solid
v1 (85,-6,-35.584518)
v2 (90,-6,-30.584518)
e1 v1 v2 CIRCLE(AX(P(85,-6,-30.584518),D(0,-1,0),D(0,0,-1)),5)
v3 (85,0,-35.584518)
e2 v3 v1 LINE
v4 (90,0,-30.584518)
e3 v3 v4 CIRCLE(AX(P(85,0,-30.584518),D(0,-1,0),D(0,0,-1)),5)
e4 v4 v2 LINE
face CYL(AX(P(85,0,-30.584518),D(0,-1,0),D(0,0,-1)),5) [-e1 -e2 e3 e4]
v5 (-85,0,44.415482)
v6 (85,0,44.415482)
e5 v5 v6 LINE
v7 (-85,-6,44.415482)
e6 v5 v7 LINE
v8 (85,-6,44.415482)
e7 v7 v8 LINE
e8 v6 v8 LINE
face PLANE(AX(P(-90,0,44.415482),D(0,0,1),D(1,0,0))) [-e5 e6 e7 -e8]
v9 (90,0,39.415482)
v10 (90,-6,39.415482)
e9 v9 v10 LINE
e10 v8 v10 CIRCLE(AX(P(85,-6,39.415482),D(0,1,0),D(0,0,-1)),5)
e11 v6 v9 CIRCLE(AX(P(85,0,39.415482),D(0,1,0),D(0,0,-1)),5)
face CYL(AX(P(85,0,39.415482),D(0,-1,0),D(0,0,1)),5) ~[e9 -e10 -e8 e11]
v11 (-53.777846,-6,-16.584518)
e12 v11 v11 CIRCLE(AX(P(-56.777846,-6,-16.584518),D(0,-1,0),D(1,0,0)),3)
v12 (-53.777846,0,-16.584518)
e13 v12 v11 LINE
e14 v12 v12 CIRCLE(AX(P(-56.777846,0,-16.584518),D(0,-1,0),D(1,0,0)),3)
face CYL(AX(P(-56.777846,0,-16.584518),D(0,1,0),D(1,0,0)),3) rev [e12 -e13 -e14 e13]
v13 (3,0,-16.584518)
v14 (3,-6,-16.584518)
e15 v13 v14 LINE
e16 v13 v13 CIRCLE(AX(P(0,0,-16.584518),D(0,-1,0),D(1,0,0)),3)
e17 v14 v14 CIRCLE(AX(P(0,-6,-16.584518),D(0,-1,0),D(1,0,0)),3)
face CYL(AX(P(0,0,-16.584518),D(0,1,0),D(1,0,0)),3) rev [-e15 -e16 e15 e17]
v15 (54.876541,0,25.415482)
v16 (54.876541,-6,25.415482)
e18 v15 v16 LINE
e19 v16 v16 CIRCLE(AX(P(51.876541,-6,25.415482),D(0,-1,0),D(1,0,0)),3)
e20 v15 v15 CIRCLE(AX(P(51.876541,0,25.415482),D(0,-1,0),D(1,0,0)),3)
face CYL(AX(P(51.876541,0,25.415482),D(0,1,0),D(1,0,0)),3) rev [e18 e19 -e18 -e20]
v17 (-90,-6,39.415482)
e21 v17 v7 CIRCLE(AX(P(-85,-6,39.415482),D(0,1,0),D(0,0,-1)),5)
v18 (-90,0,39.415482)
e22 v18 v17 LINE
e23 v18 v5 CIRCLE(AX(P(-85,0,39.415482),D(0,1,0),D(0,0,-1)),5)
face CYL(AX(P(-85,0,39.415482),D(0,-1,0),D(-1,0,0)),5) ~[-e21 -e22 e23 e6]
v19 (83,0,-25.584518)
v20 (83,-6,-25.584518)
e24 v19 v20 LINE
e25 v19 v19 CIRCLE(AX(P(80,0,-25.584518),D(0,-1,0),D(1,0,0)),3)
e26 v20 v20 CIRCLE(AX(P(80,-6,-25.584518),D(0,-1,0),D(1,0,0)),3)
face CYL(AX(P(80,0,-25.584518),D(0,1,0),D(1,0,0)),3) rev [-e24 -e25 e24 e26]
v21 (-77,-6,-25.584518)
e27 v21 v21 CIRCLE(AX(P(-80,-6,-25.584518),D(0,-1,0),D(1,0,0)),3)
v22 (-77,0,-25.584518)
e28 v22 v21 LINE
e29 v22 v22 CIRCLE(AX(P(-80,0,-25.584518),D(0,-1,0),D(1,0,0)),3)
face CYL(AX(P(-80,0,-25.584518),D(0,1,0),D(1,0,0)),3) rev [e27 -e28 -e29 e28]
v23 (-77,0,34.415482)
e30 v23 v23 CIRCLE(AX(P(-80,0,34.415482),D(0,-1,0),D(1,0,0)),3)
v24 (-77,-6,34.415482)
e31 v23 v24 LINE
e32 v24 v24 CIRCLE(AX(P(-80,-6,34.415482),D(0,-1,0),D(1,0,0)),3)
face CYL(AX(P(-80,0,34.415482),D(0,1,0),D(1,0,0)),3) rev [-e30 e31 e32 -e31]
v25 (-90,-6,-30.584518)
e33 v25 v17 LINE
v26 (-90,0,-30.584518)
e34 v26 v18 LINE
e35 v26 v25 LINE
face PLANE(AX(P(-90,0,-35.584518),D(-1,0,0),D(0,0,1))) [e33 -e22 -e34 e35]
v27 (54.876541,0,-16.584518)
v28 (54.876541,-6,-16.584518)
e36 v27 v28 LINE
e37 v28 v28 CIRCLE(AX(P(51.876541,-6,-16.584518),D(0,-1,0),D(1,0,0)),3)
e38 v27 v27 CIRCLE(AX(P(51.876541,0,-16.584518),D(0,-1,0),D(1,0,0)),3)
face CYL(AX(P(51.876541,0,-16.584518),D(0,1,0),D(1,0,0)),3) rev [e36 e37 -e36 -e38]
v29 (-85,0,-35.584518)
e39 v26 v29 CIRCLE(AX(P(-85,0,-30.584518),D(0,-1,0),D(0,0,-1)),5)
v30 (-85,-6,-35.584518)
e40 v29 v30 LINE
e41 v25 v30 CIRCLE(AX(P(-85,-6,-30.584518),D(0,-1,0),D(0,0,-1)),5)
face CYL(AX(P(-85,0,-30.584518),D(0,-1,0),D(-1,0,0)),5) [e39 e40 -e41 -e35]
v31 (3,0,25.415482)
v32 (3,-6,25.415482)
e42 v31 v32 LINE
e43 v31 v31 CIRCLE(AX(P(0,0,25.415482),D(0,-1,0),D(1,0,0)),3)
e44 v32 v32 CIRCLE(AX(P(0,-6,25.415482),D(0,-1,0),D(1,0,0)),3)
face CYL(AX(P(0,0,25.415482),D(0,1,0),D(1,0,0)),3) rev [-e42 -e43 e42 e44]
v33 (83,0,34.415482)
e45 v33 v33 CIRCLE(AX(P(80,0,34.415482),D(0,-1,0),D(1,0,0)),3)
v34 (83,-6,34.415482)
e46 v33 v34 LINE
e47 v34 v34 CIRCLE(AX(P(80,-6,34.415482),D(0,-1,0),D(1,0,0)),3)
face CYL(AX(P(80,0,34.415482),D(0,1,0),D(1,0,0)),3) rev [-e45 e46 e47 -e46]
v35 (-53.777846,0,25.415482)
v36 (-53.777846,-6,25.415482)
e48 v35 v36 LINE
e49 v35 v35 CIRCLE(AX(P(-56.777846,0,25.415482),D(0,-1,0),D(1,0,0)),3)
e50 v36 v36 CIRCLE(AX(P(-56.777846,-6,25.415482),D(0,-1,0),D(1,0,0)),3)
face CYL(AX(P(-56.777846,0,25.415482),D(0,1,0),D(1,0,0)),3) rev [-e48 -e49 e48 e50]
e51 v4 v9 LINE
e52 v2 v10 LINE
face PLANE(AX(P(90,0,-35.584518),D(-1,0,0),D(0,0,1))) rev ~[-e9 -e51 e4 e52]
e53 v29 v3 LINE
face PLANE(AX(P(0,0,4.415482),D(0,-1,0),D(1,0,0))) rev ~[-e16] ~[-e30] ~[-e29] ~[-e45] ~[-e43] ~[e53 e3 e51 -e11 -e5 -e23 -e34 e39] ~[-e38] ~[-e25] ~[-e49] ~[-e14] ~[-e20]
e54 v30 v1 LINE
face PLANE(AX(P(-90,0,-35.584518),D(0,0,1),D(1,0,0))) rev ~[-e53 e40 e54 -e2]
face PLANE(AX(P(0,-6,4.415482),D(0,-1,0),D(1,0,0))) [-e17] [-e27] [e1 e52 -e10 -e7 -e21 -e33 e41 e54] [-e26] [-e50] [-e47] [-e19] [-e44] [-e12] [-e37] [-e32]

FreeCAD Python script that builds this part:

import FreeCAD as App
import Part
import Sketcher
from FreeCAD import Vector


def edges_at(feature, points):
    """Names of the edges that pass closest to the given points."""
    edges = feature.Shape.Edges
    near = lambda p: min(range(len(edges)), key=lambda i: edges[i].distToShape(Part.Vertex(*p))[0])
    return sorted({f"Edge{near(p) + 1}" for p in points})


def add_polygon(sketch, points):
    """Adds a closed chain of lines whose ends are joined by coincident constraints."""
    first, n = sketch.GeometryCount, len(points)
    for a, b in zip(points, points[1:] + points[:1]):
        sketch.addGeometry(Part.LineSegment(App.Vector(*a, 0), App.Vector(*b, 0)), False)
    for i in range(n):
        sketch.addConstraint(Sketcher.Constraint("Coincident", first + i, 2, first + (i + 1) % n, 1))

doc = App.newDocument("Part")
body = doc.addObject("PartDesign::Body", "Body")

# Sketch on XZ plane
sketch1 = doc.addObject("Sketcher::SketchObject", "Sketch")
body.addObject(sketch1)
sketch1.AttachmentSupport = (doc.XZ_Plane, [""])
sketch1.MapMode = "FlatFace"
add_polygon(sketch1, [(-90, 44.415482), (-90, -35.584518), (90, -35.584518), (90, 44.415482)])  # lines 0-3
sketch1.addGeometry(Part.Circle(Vector(-80, -25.584518, 0), Vector(0, 0, 1), 3), False)  # 4
sketch1.addGeometry(Part.Circle(Vector(-56.777846, -16.584518, 0), Vector(0, 0, 1), 3), False)  # 5
sketch1.addGeometry(Part.Circle(Vector(0, -16.584518, 0), Vector(0, 0, 1), 3), False)  # 6
sketch1.addGeometry(Part.Circle(Vector(80, -25.584518, 0), Vector(0, 0, 1), 3), False)  # 7
sketch1.addGeometry(Part.Circle(Vector(51.876541, -16.584518, 0), Vector(0, 0, 1), 3), False)  # 8
sketch1.addGeometry(Part.Circle(Vector(-56.777846, 25.415482, 0), Vector(0, 0, 1), 3), False)  # 9
sketch1.addGeometry(Part.Circle(Vector(-80, 34.415482, 0), Vector(0, 0, 1), 3), False)  # 10
sketch1.addGeometry(Part.Circle(Vector(0, 25.415482, 0), Vector(0, 0, 1), 3), False)  # 11
sketch1.addGeometry(Part.Circle(Vector(51.876541, 25.415482, 0), Vector(0, 0, 1), 3), False)  # 12
sketch1.addGeometry(Part.Circle(Vector(80, 34.415482, 0), Vector(0, 0, 1), 3), False)  # 13
sketch1.addConstraint([
    Sketcher.Constraint("Vertical", 0),
    Sketcher.Constraint("Horizontal", 1),
    Sketcher.Constraint("Vertical", 2),
    Sketcher.Constraint("Horizontal", 3),
    Sketcher.Constraint("Equal", 4, 5),
    Sketcher.Constraint("Equal", 5, 6),
    Sketcher.Constraint("Equal", 6, 7),
    Sketcher.Constraint("Equal", 7, 8),
    Sketcher.Constraint("Equal", 8, 9),
    Sketcher.Constraint("Equal", 9, 10),
    Sketcher.Constraint("Equal", 10, 11),
    Sketcher.Constraint("Equal", 11, 12),
    Sketcher.Constraint("Equal", 12, 13),
    Sketcher.Constraint("Symmetric", 4, 3, 7, 3, -2),
    Sketcher.Constraint("Symmetric", 10, 3, 13, 3, -2),
    Sketcher.Constraint("PointOnObject", 6, 3, -2),
    Sketcher.Constraint("PointOnObject", 11, 3, -2),
    Sketcher.Constraint("Horizontal", 5, 3, 6, 3),
    Sketcher.Constraint("Horizontal", 6, 3, 8, 3),
    Sketcher.Constraint("Horizontal", 9, 3, 11, 3),
    Sketcher.Constraint("Horizontal", 11, 3, 12, 3),
    Sketcher.Constraint("Vertical", 5, 3, 9, 3),
    Sketcher.Constraint("Vertical", 4, 3, 10, 3),
    Sketcher.Constraint("Vertical", 8, 3, 12, 3),
    Sketcher.Constraint("Diameter", 4, 6.0),
    Sketcher.Constraint("DistanceX", 1, 1, 1, 2, 180.0),
    Sketcher.Constraint("DistanceY", 0, 2, 0, 1, 80.0),
    Sketcher.Constraint("DistanceX", 4, 3, -1, 1, 80.0),
    Sketcher.Constraint("DistanceX", 0, 2, -1, 1, 90.0),
    Sketcher.Constraint("DistanceY", 4, 3, 5, 3, 9.0),
    Sketcher.Constraint("DistanceY", 5, 3, 9, 3, 42.0),
    Sketcher.Constraint("DistanceY", 9, 3, 10, 3, 9.0),
    Sketcher.Constraint("DistanceY", 0, 2, 4, 3, 10.0),
    Sketcher.Constraint("DistanceX", -1, 1, 8, 3, 51.876541),
    Sketcher.Constraint("DistanceY", -1, 1, 10, 3, 34.415482),
    Sketcher.Constraint("DistanceX", 5, 3, -1, 1, 56.777846),
])
pad1 = doc.addObject("PartDesign::Pad", "Pad")
body.addObject(pad1)
pad1.Profile = sketch1
pad1.Length = 6
doc.recompute()

fillet = doc.addObject("PartDesign::Fillet", "Fillet")
body.addObject(fillet)
fillet.Base = (pad1, edges_at(pad1, [
    (-90, -3, 44.415),
    (-90, -3, -35.585),
    (90, -3, 44.415),
    (90, -3, -35.585),
]))
fillet.Radius = 5

doc.recompute()
